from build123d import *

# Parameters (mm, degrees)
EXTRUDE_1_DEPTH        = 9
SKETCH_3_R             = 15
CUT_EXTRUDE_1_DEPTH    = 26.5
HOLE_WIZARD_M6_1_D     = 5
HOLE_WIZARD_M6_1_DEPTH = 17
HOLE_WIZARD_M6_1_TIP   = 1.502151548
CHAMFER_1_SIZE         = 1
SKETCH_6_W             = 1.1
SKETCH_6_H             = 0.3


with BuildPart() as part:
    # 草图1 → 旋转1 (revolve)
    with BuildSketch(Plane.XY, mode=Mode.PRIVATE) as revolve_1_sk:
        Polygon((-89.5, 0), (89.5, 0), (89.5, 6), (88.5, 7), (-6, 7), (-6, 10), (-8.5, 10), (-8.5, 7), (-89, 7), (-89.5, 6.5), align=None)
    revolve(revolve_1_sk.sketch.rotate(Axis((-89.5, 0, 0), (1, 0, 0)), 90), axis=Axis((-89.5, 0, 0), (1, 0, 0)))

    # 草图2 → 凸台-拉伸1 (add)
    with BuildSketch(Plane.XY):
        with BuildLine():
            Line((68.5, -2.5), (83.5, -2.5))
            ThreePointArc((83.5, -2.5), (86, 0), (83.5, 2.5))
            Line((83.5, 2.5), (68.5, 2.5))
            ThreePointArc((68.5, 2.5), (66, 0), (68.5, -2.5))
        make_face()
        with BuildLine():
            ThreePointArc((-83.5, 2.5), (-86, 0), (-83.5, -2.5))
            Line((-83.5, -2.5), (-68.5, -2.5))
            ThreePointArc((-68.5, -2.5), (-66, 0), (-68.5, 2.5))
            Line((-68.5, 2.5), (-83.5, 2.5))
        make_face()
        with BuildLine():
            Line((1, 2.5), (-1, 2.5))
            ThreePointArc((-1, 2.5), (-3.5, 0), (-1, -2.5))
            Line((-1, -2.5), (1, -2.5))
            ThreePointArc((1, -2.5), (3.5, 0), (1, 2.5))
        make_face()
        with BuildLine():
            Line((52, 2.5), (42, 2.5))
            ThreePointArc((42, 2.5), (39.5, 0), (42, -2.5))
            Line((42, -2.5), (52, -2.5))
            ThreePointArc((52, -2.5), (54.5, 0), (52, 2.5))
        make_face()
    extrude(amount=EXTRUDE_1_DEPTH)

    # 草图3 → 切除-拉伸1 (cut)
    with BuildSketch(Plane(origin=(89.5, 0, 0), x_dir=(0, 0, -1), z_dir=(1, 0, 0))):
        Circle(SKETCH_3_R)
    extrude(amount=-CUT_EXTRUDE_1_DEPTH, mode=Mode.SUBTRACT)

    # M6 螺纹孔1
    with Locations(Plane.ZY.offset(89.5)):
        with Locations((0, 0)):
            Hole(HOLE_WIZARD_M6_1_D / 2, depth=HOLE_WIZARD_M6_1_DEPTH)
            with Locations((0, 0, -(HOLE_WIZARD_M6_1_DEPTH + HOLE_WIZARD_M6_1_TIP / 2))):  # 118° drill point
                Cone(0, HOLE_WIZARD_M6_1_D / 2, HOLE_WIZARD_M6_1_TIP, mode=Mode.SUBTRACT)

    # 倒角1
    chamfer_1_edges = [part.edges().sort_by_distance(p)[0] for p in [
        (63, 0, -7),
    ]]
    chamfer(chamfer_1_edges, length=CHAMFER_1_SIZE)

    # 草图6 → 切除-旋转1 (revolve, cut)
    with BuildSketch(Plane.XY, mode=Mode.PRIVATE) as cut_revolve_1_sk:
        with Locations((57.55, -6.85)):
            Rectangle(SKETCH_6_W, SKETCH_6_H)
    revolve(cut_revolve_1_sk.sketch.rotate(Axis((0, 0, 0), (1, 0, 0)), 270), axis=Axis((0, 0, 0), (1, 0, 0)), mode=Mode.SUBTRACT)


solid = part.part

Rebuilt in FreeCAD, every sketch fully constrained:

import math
import FreeCAD as App
import Part
import Sketcher
from FreeCAD import Vector
Q = App.Units.Quantity


def edges_at(feature, points):
    """Names of the edges that pass closest to the given points."""
    edges = feature.Shape.Edges
    near = lambda p: min(range(len(edges)), key=lambda i: edges[i].distToShape(Part.Vertex(*p))[0])
    return sorted({f"Edge{near(p) + 1}" for p in points})


def add_polygon(sketch, points):
    """Adds a closed chain of lines whose ends are joined by coincident constraints."""
    first, n = sketch.GeometryCount, len(points)
    for a, b in zip(points, points[1:] + points[:1]):
        sketch.addGeometry(Part.LineSegment(App.Vector(*a, 0), App.Vector(*b, 0)), False)
    for i in range(n):
        sketch.addConstraint(Sketcher.Constraint("Coincident", first + i, 2, first + (i + 1) % n, 1))

doc = App.newDocument("Part")
body = doc.addObject("PartDesign::Body", "Body")

# Sketch on XY plane
sketch1 = body.newObject("Sketcher::SketchObject", "Sketch")
sketch1.AttachmentSupport = (doc.getObject("XY_Plane"), [""])
sketch1.MapMode = "FlatFace"
add_polygon(sketch1, [(-89.5, 0), (89.5, 0), (89.5, 6), (88.5, 7), (-6, 7), (-6, 10), (-8.5, 10), (-8.5, 7), (-89, 7), (-89.5, 6.5)])  # lines 0-9
sketch1.addConstraint(Sketcher.Constraint("Horizontal", 0))
sketch1.addConstraint(Sketcher.Constraint("Vertical", 1))
sketch1.addConstraint(Sketcher.Constraint("Horizontal", 3))
sketch1.addConstraint(Sketcher.Constraint("Vertical", 4))
sketch1.addConstraint(Sketcher.Constraint("Horizontal", 5))
sketch1.addConstraint(Sketcher.Constraint("Vertical", 6))
sketch1.addConstraint(Sketcher.Constraint("Horizontal", 7))
sketch1.addConstraint(Sketcher.Constraint("Vertical", 9))
sketch1.addConstraint(Sketcher.Constraint("Symmetric", 0, 2, 9, 2, -1, 1))
sketch1.addConstraint(Sketcher.Constraint("Perpendicular", 2, 8))
sketch1.addConstraint(Sketcher.Constraint("Horizontal", 3, 2, 6, 2))
sketch1.addConstraint(Sketcher.Constraint("DistanceX", 0, 1, 0, 2, Q("179 mm")))
sketch1.addConstraint(Sketcher.Constraint("DistanceY", 1, 1, 1, 2, Q("6 mm")))
sketch1.addConstraint(Sketcher.Constraint("DistanceY", 4, 1, 4, 2, Q("3 mm")))
sketch1.addConstraint(Sketcher.Constraint("Angle", 2, Q("135 deg")))
sketch1.addConstraint(Sketcher.Constraint("DistanceX", 3, 2, 3, 1, Q("94.5 mm")))
sketch1.addConstraint(Sketcher.Constraint("DistanceX", 5, 2, 5, 1, Q("2.5 mm")))
sketch1.addConstraint(Sketcher.Constraint("DistanceX", 7, 2, 7, 1, Q("80.5 mm")))
sketch1.addConstraint(Sketcher.Constraint("DistanceY", 9, 2, 9, 1, Q("6.5 mm")))
revolution = body.newObject("PartDesign::Revolution", "Revolution")
revolution.Profile = sketch1
revolution.ReferenceAxis = (sketch1, ["H_Axis"])
revolution.Angle = 360

# Sketch on XY plane
sketch2 = body.newObject("Sketcher::SketchObject", "Sketch001")
sketch2.AttachmentSupport = (doc.getObject("XY_Plane"), [""])
sketch2.MapMode = "FlatFace"
sketch2.addGeometry(Part.LineSegment(Vector(68.5, -2.5, 0), Vector(83.5, -2.5, 0)), False)
sketch2.addGeometry(Part.ArcOfCircle(Part.Circle(Vector(83.5, 0, 0), Vector(0, 0, 1), 2.5), math.radians(-90), math.radians(90)), False)
sketch2.addGeometry(Part.LineSegment(Vector(83.5, 2.5, 0), Vector(68.5, 2.5, 0)), False)
sketch2.addGeometry(Part.ArcOfCircle(Part.Circle(Vector(68.5, 0, 0), Vector(0, 0, 1), 2.5), math.radians(90), math.radians(270)), False)
sketch2.addGeometry(Part.ArcOfCircle(Part.Circle(Vector(-83.5, 0, 0), Vector(0, 0, 1), 2.5), math.radians(90), math.radians(270)), False)
sketch2.addGeometry(Part.LineSegment(Vector(-83.5, -2.5, 0), Vector(-68.5, -2.5, 0)), False)
sketch2.addGeometry(Part.ArcOfCircle(Part.Circle(Vector(-68.5, 0, 0), Vector(0, 0, 1), 2.5), math.radians(-90), math.radians(90)), False)
sketch2.addGeometry(Part.LineSegment(Vector(-68.5, 2.5, 0), Vector(-83.5, 2.5, 0)), False)
sketch2.addGeometry(Part.LineSegment(Vector(1, 2.5, 0), Vector(-1, 2.5, 0)), False)
sketch2.addGeometry(Part.ArcOfCircle(Part.Circle(Vector(-1, 0, 0), Vector(0, 0, 1), 2.5), math.radians(90), math.radians(270)), False)
sketch2.addGeometry(Part.LineSegment(Vector(-1, -2.5, 0), Vector(1, -2.5, 0)), False)
sketch2.addGeometry(Part.ArcOfCircle(Part.Circle(Vector(1, 0, 0), Vector(0, 0, 1), 2.5), math.radians(-90), math.radians(90)), False)
sketch2.addGeometry(Part.LineSegment(Vector(52, 2.5, 0), Vector(42, 2.5, 0)), False)
sketch2.addGeometry(Part.ArcOfCircle(Part.Circle(Vector(42, 0, 0), Vector(0, 0, 1), 2.5), math.radians(90), math.radians(270)), False)
sketch2.addGeometry(Part.LineSegment(Vector(42, -2.5, 0), Vector(52, -2.5, 0)), False)
sketch2.addGeometry(Part.ArcOfCircle(Part.Circle(Vector(52, 0, 0), Vector(0, 0, 1), 2.5), math.radians(-90), math.radians(90)), False)
sketch2.addConstraint(Sketcher.Constraint("Tangent", 0, 2, 1, 1))
sketch2.addConstraint(Sketcher.Constraint("Tangent", 1, 2, 2, 1))
sketch2.addConstraint(Sketcher.Constraint("Tangent", 2, 2, 3, 1))
sketch2.addConstraint(Sketcher.Constraint("Tangent", 3, 2, 0, 1))
sketch2.addConstraint(Sketcher.Constraint("Tangent", 4, 2, 5, 1))
sketch2.addConstraint(Sketcher.Constraint("Tangent", 5, 2, 6, 1))
sketch2.addConstraint(Sketcher.Constraint("Tangent", 6, 2, 7, 1))
sketch2.addConstraint(Sketcher.Constraint("Tangent", 7, 2, 4, 1))
sketch2.addConstraint(Sketcher.Constraint("Tangent", 8, 2, 9, 1))
sketch2.addConstraint(Sketcher.Constraint("Tangent", 9, 2, 10, 1))
sketch2.addConstraint(Sketcher.Constraint("Tangent", 10, 2, 11, 1))
sketch2.addConstraint(Sketcher.Constraint("Tangent", 11, 2, 8, 1))
sketch2.addConstraint(Sketcher.Constraint("Tangent", 12, 2, 13, 1))
sketch2.addConstraint(Sketcher.Constraint("Tangent", 13, 2, 14, 1))
sketch2.addConstraint(Sketcher.Constraint("Tangent", 14, 2, 15, 1))
sketch2.addConstraint(Sketcher.Constraint("Tangent", 15, 2, 12, 1))
sketch2.addConstraint(Sketcher.Constraint("Horizontal", 0))
sketch2.addConstraint(Sketcher.Constraint("Horizontal", 2))
sketch2.addConstraint(Sketcher.Constraint("Horizontal", 5))
sketch2.addConstraint(Sketcher.Constraint("Horizontal", 7))
sketch2.addConstraint(Sketcher.Constraint("Horizontal", 8))
sketch2.addConstraint(Sketcher.Constraint("Horizontal", 10))
sketch2.addConstraint(Sketcher.Constraint("Horizontal", 12))
sketch2.addConstraint(Sketcher.Constraint("Horizontal", 14))
sketch2.addConstraint(Sketcher.Constraint("Equal", 3, 4))
sketch2.addConstraint(Sketcher.Constraint("Equal", 6, 9))
sketch2.addConstraint(Sketcher.Constraint("Equal", 11, 13))
sketch2.addConstraint(Sketcher.Constraint("Symmetric", 1, 3, 4, 3, -1, 1))
sketch2.addConstraint(Sketcher.Constraint("Symmetric", 9, 3, 11, 3, -1, 1))
sketch2.addConstraint(Sketcher.Constraint("Symmetric", 3, 3, 6, 3, -2))
sketch2.addConstraint(Sketcher.Constraint("PointOnObject", 13, 3, -1))
sketch2.addConstraint(Sketcher.Constraint("Radius", 1, Q("2.5 mm")))
sketch2.addConstraint(Sketcher.Constraint("DistanceX", 0, 1, 0, 2, Q("15 mm")))
sketch2.addConstraint(Sketcher.Constraint("DistanceX", 8, 2, 8, 1, Q("2 mm")))
sketch2.addConstraint(Sketcher.Constraint("DistanceX", 12, 2, 12, 1, Q("10 mm")))
sketch2.addConstraint(Sketcher.Constraint("DistanceX", -1, 1, 13, 3, Q("42 mm")))
sketch2.addConstraint(Sketcher.Constraint("DistanceX", 4, 3, 3, 3, Q("152 mm")))
pad1 = body.newObject("PartDesign::Pad", "Pad")
pad1.Profile = sketch2
pad1.Length = 9

# Sketch on YZ plane
sketch3 = body.newObject("Sketcher::SketchObject", "Sketch002")
sketch3.AttachmentSupport = (doc.getObject("YZ_Plane"), [""])
sketch3.MapMode = "FlatFace"
sketch3.AttachmentOffset = App.Placement(Vector(0, 0, 89.5), App.Rotation())
sketch3.addGeometry(Part.Circle(Vector(0, 0, 0), Vector(0, 0, 1), 15), False)
sketch3.addConstraint(Sketcher.Constraint("Coincident", 0, 3, -1, 1))
sketch3.addConstraint(Sketcher.Constraint("Diameter", 0, Q("30 mm")))
pocket1 = body.newObject("PartDesign::Pocket", "Pocket")
pocket1.Profile = sketch3
pocket1.Length = 26.5

# Sketch on YZ plane
sketch4 = body.newObject("Sketcher::SketchObject", "Sketch003")
sketch4.AttachmentSupport = (doc.getObject("YZ_Plane"), [""])
sketch4.MapMode = "FlatFace"
sketch4.AttachmentOffset = App.Placement(Vector(0, 0, -89.5), App.Rotation())
sketch4.addGeometry(Part.Circle(Vector(0, 0, 0), Vector(0, 0, 1), 2.5), False)
sketch4.addConstraint(Sketcher.Constraint("Coincident", 0, 3, -1, 1))
sketch4.addConstraint(Sketcher.Constraint("Diameter", 0, Q("5 mm")))
doc.recompute()
hole = body.newObject("PartDesign::Hole", "Hole")
hole.Profile = sketch4
hole.ThreadType = "None"
hole.Diameter = 5
hole.DepthType = "Dimension"
hole.Depth = 17
hole.DrillPoint = "Angled"
hole.DrillPointAngle = 118
hole.Reversed = True
doc.recompute()

chamfer = body.newObject("PartDesign::Chamfer", "Chamfer")
chamfer.Base = (hole, edges_at(hole, [(63, 0, -7)]))
chamfer.Size = 1

# Sketch on XY plane
sketch5 = body.newObject("Sketcher::SketchObject", "Sketch004")
sketch5.AttachmentSupport = (doc.getObject("XY_Plane"), [""])
sketch5.MapMode = "FlatFace"
add_polygon(sketch5, [(57, -6.7), (57, -7), (58.1, -7), (58.1, -6.7)])  # lines 0-3
sketch5.addConstraint(Sketcher.Constraint("Vertical", 0))
sketch5.addConstraint(Sketcher.Constraint("Horizontal", 1))
sketch5.addConstraint(Sketcher.Constraint("Vertical", 2))
sketch5.addConstraint(Sketcher.Constraint("Horizontal", 3))
sketch5.addConstraint(Sketcher.Constraint("DistanceX", 1, 1, 1, 2, Q("1.1 mm")))
sketch5.addConstraint(Sketcher.Constraint("DistanceY", 0, 2, 0, 1, Q("0.3 mm")))
sketch5.addConstraint(Sketcher.Constraint("DistanceX", -1, 1, 0, 2, Q("57 mm")))
sketch5.addConstraint(Sketcher.Constraint("DistanceY", 0, 2, -1, 1, Q("7 mm")))
groove = body.newObject("PartDesign::Groove", "Groove")
groove.Profile = sketch5
groove.ReferenceAxis = (sketch5, ["H_Axis"])
groove.Angle = 360

doc.recompute()
